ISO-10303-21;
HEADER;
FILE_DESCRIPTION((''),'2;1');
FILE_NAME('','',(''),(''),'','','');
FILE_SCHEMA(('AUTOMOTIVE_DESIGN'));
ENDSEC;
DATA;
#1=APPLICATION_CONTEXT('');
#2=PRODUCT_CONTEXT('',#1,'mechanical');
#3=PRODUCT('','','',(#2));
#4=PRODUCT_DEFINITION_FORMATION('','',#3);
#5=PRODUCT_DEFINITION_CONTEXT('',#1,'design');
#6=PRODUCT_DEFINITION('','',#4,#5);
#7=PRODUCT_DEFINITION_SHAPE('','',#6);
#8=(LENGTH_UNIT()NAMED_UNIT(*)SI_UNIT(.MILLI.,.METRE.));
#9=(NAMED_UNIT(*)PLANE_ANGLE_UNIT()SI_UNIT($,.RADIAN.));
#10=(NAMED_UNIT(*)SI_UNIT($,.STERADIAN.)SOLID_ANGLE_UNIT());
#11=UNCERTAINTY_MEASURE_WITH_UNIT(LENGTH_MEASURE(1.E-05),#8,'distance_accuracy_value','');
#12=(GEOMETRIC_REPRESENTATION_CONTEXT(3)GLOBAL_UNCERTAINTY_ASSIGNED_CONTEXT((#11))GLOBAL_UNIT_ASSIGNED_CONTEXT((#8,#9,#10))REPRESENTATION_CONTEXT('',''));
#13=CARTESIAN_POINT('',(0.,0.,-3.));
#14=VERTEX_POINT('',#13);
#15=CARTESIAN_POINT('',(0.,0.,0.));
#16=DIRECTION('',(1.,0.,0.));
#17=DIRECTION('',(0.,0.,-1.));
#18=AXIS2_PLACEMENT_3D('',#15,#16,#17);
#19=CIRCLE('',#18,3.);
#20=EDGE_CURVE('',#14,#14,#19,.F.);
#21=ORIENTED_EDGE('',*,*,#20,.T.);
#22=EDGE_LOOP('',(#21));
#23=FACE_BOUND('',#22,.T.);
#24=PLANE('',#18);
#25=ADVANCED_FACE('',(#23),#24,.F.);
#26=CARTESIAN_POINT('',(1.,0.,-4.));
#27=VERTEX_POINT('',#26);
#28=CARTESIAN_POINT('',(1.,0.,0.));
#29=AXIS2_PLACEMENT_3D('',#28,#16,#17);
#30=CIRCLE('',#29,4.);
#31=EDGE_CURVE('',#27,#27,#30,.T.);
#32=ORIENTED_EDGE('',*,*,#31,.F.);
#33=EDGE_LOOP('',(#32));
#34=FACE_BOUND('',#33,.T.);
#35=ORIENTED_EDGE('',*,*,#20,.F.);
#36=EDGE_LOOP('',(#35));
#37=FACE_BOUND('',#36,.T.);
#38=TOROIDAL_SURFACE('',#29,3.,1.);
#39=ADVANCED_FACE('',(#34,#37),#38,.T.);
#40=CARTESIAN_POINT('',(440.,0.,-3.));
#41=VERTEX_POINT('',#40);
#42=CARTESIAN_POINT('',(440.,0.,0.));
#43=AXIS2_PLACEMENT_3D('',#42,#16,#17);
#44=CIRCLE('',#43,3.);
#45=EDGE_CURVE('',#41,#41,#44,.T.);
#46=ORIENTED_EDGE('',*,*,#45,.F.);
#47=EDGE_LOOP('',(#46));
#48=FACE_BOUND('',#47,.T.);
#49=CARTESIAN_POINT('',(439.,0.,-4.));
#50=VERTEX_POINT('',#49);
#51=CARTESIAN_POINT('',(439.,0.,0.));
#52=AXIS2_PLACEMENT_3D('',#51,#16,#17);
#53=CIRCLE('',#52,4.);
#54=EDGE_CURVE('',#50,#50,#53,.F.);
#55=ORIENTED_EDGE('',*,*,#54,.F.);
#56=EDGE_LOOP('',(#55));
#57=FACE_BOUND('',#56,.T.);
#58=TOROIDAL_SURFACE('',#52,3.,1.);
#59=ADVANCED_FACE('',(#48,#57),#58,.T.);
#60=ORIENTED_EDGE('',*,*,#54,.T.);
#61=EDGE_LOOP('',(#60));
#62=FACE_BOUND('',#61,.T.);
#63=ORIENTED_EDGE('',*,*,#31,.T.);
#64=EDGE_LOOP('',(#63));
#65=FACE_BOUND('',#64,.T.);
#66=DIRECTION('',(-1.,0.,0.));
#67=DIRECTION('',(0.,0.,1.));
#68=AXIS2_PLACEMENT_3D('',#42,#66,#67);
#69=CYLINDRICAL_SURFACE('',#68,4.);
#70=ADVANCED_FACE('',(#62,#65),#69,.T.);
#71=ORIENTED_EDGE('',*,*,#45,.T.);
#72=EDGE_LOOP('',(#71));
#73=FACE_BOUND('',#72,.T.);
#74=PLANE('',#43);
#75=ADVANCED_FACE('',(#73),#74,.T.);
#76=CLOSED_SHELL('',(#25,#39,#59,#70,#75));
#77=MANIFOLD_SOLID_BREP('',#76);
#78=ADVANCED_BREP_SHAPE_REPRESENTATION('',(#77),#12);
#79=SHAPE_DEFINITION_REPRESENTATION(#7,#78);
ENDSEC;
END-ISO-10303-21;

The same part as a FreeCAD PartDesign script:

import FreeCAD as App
import Part
import Sketcher
Q = App.Units.Quantity


def edges_at(feature, points):
    """Names of the edges that pass closest to the given points."""
    edges = feature.Shape.Edges
    near = lambda p: min(range(len(edges)), key=lambda i: edges[i].distToShape(Part.Vertex(*p))[0])
    return sorted({f"Edge{near(p) + 1}" for p in points})

doc = App.newDocument("Part")
body = doc.addObject("PartDesign::Body", "Body")

# Sketch on YZ plane
sketch1 = body.newObject("Sketcher::SketchObject", "Sketch")
sketch1.AttachmentSupport = (doc.getObject("YZ_Plane"), [""])
sketch1.MapMode = "FlatFace"
sketch1.addGeometry(Part.Circle(App.Vector(0, 0, 0), App.Vector(0, 0, 1), 4), False)
sketch1.addConstraint([
    Sketcher.Constraint("Coincident", 0, 3, -1, 1),
    Sketcher.Constraint("Diameter", 0, Q("8 mm")),
])
pad1 = body.newObject("PartDesign::Pad", "Pad")
pad1.Profile = sketch1
pad1.Length = 440
doc.recompute()

fillet = body.newObject("PartDesign::Fillet", "Fillet")
fillet.Base = (pad1, edges_at(pad1, [(0, 0, 4), (440, 0, 4)]))
fillet.Radius = 1

doc.recompute()
